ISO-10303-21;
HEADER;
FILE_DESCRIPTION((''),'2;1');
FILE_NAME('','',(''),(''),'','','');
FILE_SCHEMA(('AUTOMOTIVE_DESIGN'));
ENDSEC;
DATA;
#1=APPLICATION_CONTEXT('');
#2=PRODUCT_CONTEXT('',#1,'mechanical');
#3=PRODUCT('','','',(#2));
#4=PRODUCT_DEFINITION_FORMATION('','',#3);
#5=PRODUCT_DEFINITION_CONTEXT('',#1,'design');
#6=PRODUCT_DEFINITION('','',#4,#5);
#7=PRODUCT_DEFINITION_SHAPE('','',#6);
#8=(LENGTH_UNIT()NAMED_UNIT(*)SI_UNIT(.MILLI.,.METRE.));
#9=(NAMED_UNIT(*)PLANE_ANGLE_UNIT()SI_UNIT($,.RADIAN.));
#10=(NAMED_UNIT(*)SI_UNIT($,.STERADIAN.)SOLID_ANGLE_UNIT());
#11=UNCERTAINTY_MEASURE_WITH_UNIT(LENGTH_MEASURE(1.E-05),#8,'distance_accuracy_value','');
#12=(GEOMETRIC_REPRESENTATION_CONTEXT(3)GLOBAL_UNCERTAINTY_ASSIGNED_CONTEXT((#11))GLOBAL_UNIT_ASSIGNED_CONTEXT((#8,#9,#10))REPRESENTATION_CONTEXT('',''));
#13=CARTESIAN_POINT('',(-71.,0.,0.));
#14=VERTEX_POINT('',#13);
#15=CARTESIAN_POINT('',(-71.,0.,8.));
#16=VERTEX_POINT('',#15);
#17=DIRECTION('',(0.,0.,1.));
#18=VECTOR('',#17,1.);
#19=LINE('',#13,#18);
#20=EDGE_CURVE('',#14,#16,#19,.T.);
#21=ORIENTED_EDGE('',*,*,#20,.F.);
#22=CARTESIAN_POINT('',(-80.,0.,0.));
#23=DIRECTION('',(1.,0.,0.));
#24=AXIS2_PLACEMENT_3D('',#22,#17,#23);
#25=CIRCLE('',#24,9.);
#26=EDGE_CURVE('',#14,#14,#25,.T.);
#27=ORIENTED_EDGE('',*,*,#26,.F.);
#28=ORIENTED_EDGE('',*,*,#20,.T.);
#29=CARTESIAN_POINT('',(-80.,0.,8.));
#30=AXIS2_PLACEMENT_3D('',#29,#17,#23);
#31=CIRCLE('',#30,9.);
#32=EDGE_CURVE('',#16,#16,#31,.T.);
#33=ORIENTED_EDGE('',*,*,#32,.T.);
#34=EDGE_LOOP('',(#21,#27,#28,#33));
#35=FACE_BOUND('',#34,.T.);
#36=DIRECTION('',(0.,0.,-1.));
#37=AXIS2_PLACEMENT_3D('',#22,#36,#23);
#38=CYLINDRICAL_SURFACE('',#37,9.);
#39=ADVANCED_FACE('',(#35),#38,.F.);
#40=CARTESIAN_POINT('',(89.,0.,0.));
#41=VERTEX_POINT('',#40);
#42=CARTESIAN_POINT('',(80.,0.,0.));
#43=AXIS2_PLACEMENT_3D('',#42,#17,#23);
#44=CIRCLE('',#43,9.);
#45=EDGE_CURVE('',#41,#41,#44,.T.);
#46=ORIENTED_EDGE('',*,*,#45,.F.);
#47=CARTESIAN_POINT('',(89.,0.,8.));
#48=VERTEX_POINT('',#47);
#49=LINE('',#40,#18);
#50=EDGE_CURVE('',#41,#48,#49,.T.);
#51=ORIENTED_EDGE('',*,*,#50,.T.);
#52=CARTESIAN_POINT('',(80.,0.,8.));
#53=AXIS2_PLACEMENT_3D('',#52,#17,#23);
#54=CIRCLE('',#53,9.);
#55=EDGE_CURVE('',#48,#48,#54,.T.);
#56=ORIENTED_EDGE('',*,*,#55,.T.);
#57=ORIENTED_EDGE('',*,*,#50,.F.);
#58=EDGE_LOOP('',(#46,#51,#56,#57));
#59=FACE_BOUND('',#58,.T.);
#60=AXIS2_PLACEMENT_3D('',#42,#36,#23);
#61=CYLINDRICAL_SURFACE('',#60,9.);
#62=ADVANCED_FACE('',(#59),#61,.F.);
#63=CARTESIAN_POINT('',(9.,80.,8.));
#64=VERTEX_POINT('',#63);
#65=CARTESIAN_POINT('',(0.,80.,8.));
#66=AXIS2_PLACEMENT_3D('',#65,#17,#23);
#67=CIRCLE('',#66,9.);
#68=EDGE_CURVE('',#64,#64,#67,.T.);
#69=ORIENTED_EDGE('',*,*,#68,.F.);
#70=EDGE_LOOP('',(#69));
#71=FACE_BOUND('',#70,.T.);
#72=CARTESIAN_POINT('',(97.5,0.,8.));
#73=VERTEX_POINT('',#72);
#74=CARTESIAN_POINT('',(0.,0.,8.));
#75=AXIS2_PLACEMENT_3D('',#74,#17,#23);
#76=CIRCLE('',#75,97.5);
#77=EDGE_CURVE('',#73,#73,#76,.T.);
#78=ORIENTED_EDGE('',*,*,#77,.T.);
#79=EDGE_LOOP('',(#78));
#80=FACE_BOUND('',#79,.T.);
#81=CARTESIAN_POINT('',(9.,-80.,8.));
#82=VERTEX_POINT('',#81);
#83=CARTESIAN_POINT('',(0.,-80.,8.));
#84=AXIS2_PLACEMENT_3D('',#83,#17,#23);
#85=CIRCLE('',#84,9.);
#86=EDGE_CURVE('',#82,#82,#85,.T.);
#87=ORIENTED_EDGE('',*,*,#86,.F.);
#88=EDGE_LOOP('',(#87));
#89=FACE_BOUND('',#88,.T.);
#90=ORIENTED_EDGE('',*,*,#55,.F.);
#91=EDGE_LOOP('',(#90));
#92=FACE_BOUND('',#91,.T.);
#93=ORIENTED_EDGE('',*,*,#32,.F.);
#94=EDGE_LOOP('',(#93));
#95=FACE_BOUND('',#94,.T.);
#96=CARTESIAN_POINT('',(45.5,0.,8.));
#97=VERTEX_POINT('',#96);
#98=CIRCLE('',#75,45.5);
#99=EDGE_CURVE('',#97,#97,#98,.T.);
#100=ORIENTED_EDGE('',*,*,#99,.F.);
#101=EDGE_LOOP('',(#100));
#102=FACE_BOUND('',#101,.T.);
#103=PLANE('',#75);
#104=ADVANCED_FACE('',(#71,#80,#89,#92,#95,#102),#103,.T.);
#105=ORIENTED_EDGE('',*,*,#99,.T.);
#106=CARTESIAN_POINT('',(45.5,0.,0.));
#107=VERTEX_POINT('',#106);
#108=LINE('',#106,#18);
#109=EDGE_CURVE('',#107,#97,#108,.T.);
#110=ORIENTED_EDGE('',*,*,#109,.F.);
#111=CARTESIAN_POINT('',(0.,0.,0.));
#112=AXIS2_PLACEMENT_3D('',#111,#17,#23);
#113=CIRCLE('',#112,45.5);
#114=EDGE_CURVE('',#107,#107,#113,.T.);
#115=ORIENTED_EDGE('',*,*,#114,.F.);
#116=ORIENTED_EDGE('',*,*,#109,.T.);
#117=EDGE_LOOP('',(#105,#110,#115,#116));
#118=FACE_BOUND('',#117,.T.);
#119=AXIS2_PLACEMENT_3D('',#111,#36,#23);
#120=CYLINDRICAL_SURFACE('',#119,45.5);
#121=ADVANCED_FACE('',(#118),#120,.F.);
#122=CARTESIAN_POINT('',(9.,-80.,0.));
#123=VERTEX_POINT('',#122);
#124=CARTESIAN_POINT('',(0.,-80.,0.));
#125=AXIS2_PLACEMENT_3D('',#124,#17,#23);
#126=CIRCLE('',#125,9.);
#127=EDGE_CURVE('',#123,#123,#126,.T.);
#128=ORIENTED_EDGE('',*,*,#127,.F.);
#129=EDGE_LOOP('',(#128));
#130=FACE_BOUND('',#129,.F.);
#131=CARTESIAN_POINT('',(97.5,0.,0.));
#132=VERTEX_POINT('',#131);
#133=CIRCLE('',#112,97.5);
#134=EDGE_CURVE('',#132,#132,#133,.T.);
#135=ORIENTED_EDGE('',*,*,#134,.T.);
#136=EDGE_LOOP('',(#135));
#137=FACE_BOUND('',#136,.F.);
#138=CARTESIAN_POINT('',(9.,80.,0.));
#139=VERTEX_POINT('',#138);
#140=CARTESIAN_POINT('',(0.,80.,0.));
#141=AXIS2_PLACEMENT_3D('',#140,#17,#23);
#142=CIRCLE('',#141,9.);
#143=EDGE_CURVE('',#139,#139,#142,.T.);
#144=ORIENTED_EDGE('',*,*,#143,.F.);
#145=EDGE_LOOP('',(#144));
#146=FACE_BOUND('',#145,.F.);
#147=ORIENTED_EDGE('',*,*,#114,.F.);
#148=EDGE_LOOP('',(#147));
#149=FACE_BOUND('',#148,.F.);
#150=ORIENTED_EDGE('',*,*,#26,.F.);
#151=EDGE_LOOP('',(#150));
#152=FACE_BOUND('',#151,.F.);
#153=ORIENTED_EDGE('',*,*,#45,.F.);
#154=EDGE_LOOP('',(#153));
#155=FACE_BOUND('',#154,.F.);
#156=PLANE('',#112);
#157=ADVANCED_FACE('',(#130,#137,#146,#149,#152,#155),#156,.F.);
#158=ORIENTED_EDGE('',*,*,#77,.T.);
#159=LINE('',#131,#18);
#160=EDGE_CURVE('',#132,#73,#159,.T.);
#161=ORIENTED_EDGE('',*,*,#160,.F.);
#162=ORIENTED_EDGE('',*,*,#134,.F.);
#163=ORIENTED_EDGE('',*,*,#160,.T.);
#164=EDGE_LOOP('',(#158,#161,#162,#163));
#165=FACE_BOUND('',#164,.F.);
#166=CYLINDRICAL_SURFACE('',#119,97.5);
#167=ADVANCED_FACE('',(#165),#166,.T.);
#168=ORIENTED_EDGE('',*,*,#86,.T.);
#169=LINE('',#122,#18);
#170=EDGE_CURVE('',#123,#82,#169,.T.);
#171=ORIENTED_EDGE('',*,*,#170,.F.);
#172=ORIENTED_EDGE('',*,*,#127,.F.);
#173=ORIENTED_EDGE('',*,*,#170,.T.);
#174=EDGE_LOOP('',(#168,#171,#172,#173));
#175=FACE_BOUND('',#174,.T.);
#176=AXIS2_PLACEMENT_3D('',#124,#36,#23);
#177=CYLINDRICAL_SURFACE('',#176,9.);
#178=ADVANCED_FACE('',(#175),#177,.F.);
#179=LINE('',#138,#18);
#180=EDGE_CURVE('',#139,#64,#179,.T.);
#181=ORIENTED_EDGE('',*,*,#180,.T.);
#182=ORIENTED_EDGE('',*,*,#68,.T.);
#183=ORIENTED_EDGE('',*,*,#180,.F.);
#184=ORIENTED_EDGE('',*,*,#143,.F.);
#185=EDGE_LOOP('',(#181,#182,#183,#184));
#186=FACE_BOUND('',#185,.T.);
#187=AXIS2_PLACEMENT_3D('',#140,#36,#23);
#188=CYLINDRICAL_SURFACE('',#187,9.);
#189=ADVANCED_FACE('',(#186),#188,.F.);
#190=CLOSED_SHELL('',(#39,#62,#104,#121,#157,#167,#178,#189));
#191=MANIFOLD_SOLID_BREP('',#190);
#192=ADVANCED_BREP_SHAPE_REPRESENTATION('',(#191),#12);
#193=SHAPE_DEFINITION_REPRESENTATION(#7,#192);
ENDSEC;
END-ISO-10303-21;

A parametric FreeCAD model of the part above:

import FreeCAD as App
import Part
import Sketcher

V = App.Vector
Q = App.Units.Quantity

doc = App.newDocument("Part")
body = doc.addObject("PartDesign::Body", "Body")

sketch1 = body.newObject("Sketcher::SketchObject", "Sketch")
sketch1.AttachmentSupport = (doc.getObject("XY_Plane"), [""])
sketch1.MapMode = "FlatFace"
sketch1.addGeometry([
    Part.Circle(V(0, 0, 0), V(0, 0, 1), 98),
    Part.Circle(V(0, -80, 0), V(0, 0, 1), 9),
    Part.Circle(V(-80, 0, 0), V(0, 0, 1), 9),
    Part.Circle(V(0, 0, 0), V(0, 0, 1), 46),
    Part.Circle(V(80, 0, 0), V(0, 0, 1), 9),
    Part.Circle(V(0, 80, 0), V(0, 0, 1), 9),
], False)
sketch1.addConstraint([
    Sketcher.Constraint("Coincident", 0, 3, -1, 1),
    Sketcher.Constraint("Coincident", 3, 3, -1, 1),
    Sketcher.Constraint("Equal", 1, 2),
    Sketcher.Constraint("Equal", 2, 4),
    Sketcher.Constraint("Equal", 4, 5),
    Sketcher.Constraint("Symmetric", 2, 3, 4, 3, -1, 1),
    Sketcher.Constraint("Symmetric", 1, 3, 5, 3, -1, 1),
    Sketcher.Constraint("PointOnObject", 1, 3, -2),
    Sketcher.Constraint("PointOnObject", 2, 3, -1),
    Sketcher.Constraint("Diameter", 0, Q("195 mm")),
    Sketcher.Constraint("Diameter", 1, Q("18 mm")),
    Sketcher.Constraint("Diameter", 3, Q("91 mm")),
    Sketcher.Constraint("DistanceX", 2, 3, 4, 3, Q("160 mm")),
    Sketcher.Constraint("DistanceY", 1, 3, 5, 3, Q("160 mm")),
])
pad1 = body.newObject("PartDesign::Pad", "Pad")
pad1.Profile = sketch1
pad1.Length = 8

doc.recompute()
